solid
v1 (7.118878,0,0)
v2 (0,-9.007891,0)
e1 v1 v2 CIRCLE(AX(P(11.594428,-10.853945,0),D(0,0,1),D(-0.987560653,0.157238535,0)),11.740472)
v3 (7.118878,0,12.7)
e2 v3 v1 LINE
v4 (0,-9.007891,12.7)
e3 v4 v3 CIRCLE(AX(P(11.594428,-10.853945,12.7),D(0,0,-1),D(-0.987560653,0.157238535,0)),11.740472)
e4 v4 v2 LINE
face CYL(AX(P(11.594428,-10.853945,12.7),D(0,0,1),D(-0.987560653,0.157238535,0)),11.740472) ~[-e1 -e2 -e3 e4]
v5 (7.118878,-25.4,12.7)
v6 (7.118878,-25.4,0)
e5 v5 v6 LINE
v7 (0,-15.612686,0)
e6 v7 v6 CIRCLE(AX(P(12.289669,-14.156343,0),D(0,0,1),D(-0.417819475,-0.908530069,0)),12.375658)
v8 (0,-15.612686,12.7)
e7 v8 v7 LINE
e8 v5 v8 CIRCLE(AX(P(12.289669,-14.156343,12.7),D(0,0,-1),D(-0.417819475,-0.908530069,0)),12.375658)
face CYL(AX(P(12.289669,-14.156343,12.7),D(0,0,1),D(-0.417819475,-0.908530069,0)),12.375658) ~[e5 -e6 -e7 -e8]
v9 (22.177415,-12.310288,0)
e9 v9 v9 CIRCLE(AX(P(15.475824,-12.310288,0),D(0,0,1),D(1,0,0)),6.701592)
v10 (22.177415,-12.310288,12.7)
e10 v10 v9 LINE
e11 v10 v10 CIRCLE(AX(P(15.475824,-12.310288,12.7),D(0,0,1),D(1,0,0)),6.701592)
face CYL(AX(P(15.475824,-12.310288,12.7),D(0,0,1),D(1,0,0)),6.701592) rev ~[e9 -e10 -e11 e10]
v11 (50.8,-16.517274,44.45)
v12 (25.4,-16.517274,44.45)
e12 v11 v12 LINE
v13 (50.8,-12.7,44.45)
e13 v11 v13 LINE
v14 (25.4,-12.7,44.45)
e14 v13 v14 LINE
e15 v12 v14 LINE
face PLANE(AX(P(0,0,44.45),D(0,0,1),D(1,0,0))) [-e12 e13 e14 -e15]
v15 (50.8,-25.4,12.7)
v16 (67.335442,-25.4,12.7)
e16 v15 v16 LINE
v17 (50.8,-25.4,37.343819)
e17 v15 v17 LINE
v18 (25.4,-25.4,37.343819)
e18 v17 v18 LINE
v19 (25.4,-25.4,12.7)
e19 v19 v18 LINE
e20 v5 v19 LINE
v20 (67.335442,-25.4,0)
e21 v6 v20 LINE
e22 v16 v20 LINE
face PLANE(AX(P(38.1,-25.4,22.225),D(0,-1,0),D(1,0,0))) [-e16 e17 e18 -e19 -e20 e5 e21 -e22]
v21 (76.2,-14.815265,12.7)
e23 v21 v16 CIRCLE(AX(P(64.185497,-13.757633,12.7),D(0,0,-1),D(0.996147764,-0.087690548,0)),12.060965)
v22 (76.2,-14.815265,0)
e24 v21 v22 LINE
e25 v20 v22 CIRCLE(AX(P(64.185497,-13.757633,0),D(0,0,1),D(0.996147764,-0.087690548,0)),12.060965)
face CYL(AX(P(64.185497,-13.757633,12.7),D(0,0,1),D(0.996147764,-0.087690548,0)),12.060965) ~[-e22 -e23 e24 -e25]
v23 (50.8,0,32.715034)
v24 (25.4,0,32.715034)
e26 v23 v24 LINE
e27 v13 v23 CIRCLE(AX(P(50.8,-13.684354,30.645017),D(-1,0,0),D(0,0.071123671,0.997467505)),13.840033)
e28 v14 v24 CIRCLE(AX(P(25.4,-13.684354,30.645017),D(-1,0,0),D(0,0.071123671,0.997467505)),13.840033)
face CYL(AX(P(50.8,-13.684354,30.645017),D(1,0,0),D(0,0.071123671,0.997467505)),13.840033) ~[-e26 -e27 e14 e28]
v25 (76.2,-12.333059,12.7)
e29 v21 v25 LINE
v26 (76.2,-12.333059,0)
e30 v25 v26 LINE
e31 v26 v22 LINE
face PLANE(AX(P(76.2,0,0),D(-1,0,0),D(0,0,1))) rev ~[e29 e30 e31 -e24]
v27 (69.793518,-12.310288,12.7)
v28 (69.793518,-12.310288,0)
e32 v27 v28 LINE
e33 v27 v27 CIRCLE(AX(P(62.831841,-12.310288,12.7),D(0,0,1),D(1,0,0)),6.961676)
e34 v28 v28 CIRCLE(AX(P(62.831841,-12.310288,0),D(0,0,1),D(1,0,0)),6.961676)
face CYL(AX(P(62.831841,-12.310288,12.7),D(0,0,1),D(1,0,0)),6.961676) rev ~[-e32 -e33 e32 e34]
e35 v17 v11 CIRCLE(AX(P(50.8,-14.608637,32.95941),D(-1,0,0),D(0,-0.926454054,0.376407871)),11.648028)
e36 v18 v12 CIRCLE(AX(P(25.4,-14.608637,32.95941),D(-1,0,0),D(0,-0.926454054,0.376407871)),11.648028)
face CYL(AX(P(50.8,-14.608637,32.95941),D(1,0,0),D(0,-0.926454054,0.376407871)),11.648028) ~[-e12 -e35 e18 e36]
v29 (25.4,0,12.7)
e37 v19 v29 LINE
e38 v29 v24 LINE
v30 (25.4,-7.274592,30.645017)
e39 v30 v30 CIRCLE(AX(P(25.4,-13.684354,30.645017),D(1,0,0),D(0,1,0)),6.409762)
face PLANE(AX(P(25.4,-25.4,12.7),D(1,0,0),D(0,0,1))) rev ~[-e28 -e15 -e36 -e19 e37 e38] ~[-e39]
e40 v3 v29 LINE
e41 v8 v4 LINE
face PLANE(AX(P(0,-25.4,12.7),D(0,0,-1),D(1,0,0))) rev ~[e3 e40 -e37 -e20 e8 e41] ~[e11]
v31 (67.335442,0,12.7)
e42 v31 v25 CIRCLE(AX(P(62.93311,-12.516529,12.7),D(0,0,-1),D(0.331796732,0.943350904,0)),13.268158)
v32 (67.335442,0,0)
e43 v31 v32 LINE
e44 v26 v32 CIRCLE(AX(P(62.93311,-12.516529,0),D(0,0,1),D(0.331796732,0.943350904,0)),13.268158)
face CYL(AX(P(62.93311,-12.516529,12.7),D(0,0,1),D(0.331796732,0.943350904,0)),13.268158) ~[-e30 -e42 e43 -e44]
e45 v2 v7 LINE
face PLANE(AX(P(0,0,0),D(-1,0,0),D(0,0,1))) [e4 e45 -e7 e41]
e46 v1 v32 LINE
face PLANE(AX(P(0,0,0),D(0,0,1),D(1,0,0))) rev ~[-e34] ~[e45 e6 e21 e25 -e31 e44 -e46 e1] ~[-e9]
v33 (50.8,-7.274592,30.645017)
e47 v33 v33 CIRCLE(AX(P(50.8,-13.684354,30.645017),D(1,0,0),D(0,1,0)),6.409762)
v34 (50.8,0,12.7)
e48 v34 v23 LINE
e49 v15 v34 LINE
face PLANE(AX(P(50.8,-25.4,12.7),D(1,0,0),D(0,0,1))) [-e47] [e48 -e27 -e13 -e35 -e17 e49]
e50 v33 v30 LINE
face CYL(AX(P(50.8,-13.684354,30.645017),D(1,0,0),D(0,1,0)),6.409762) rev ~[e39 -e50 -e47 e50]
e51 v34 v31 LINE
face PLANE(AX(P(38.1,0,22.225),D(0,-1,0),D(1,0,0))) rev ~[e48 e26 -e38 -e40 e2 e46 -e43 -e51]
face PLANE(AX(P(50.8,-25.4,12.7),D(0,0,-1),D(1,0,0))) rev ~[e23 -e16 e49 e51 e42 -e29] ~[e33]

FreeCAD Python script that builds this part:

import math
import FreeCAD as App
import Part
import Sketcher
from FreeCAD import Vector
Q = App.Units.Quantity

doc = App.newDocument("Part")
body = doc.addObject("PartDesign::Body", "Body")

# Sketch on XZ plane
sketch1 = body.newObject("Sketcher::SketchObject", "Sketch")
sketch1.AttachmentSupport = (doc.getObject("XZ_Plane"), [""])
sketch1.MapMode = "FlatFace"
sketch1.addGeometry([
    Part.LineSegment(Vector(0, 44, 0), Vector(0, 0, 0)),
    Part.LineSegment(Vector(0, 0, 0), Vector(76, 0, 0)),
    Part.LineSegment(Vector(76, 0, 0), Vector(76, 44, 0)),
    Part.LineSegment(Vector(76, 44, 0), Vector(0, 44, 0)),
], False)
sketch1.addConstraint([
    Sketcher.Constraint("Coincident", 0, 2, 1, 1),
    Sketcher.Constraint("Coincident", 1, 2, 2, 1),
    Sketcher.Constraint("Coincident", 2, 2, 3, 1),
    Sketcher.Constraint("Coincident", 3, 2, 0, 1),
    Sketcher.Constraint("Vertical", 0),
    Sketcher.Constraint("Horizontal", 1),
    Sketcher.Constraint("Vertical", 2),
    Sketcher.Constraint("Horizontal", 3),
    Sketcher.Constraint("Coincident", 0, 2, -1, 1),
    Sketcher.Constraint("DistanceX", 1, 1, 1, 2, Q("3 in")),
    Sketcher.Constraint("DistanceY", 0, 2, 0, 1, Q("1.75 in")),
])
pad1 = body.newObject("PartDesign::Pad", "Pad")
pad1.Profile = sketch1
pad1.Length = Q("1 in")

# Sketch on XZ plane
sketch2 = body.newObject("Sketcher::SketchObject", "Sketch001")
sketch2.AttachmentSupport = (doc.getObject("XZ_Plane"), [""])
sketch2.MapMode = "FlatFace"
sketch2.AttachmentOffset = App.Placement(Vector(0, 0, 1 * 25.4), App.Rotation())
sketch2.addGeometry([
    Part.LineSegment(Vector(0, 44, 0), Vector(0, 13, 0)),  # 0
    Part.LineSegment(Vector(0, 13, 0), Vector(25, 13, 0)),  # 1
    Part.LineSegment(Vector(25, 13, 0), Vector(25, 44, 0)),  # 2
    Part.LineSegment(Vector(25, 44, 0), Vector(0, 44, 0)),  # 3
    Part.LineSegment(Vector(51, 44, 0), Vector(51, 13, 0)),  # 4
    Part.LineSegment(Vector(51, 13, 0), Vector(76, 13, 0)),  # 5
    Part.LineSegment(Vector(76, 13, 0), Vector(76, 44, 0)),  # 6
    Part.LineSegment(Vector(76, 44, 0), Vector(51, 44, 0)),  # 7
], False)
sketch2.addConstraint([
    Sketcher.Constraint("Coincident", 0, 2, 1, 1),
    Sketcher.Constraint("Coincident", 1, 2, 2, 1),
    Sketcher.Constraint("Coincident", 2, 2, 3, 1),
    Sketcher.Constraint("Coincident", 3, 2, 0, 1),
    Sketcher.Constraint("Coincident", 4, 2, 5, 1),
    Sketcher.Constraint("Coincident", 5, 2, 6, 1),
    Sketcher.Constraint("Coincident", 6, 2, 7, 1),
    Sketcher.Constraint("Coincident", 7, 2, 4, 1),
    Sketcher.Constraint("Vertical", 0),
    Sketcher.Constraint("Horizontal", 1),
    Sketcher.Constraint("Vertical", 2),
    Sketcher.Constraint("Horizontal", 3),
    Sketcher.Constraint("Vertical", 4),
    Sketcher.Constraint("Horizontal", 5),
    Sketcher.Constraint("Vertical", 6),
    Sketcher.Constraint("Horizontal", 7),
    Sketcher.Constraint("PointOnObject", 0, 2, -2),
    Sketcher.Constraint("Horizontal", 1, 2, 4, 2),
    Sketcher.Constraint("Horizontal", 3, 2, 6, 2),
    Sketcher.Constraint("Equal", 3, 5),
    Sketcher.Constraint("DistanceX", 1, 1, 1, 2, Q("1 in")),
    Sketcher.Constraint("DistanceX", -1, 1, 4, 2, Q("2 in")),
    Sketcher.Constraint("DistanceY", 0, 2, 0, 1, Q("1.25 in")),
    Sketcher.Constraint("DistanceY", -1, 1, 0, 2, Q("0.5 in")),
])
pocket1 = body.newObject("PartDesign::Pocket", "Pocket")
pocket1.Profile = sketch2
pocket1.Length = Q("1 in")

# Sketch on YZ plane
sketch3 = body.newObject("Sketcher::SketchObject", "Sketch002")
sketch3.AttachmentSupport = (doc.getObject("YZ_Plane"), [""])
sketch3.MapMode = "FlatFace"
sketch3.AttachmentOffset = App.Placement(Vector(0, 0, 2 * 25.4), App.Rotation())
sketch3.addGeometry([
    Part.ArcOfCircle(Part.Circle(Vector(-15, 33, 0), Vector(0, 0, 1), 12), math.radians(99), math.radians(158)),  # 0
    Part.LineSegment(Vector(-17, 44, 0), Vector(-25, 44, 0)),  # 1
    Part.LineSegment(Vector(-25, 44, 0), Vector(-25, 37, 0)),  # 2
    Part.LineSegment(Vector(0, 44, 0), Vector(-13, 44, 0)),  # 3
    Part.ArcOfCircle(Part.Circle(Vector(-14, 31, 0), Vector(0, 0, 1), 14), math.radians(9), math.radians(86)),  # 4
    Part.LineSegment(Vector(0, 33, 0), Vector(0, 44, 0)),  # 5
], False)
sketch3.addConstraint([
    Sketcher.Constraint("Coincident", 0, 1, 1, 1),
    Sketcher.Constraint("Coincident", 1, 2, 2, 1),
    Sketcher.Constraint("Coincident", 2, 2, 0, 2),
    Sketcher.Constraint("Coincident", 3, 2, 4, 2),
    Sketcher.Constraint("Coincident", 4, 1, 5, 1),
    Sketcher.Constraint("Coincident", 5, 2, 3, 1),
    Sketcher.Constraint("Horizontal", 1),
    Sketcher.Constraint("Vertical", 2),
    Sketcher.Constraint("Horizontal", 3),
    Sketcher.Constraint("Vertical", 5),
    Sketcher.Constraint("PointOnObject", 4, 1, -2),
    Sketcher.Constraint("Horizontal", 1, 2, 3, 2),
    Sketcher.Constraint("DistanceX", 3, 2, 3, 1, Q("0.5 in")),
    Sketcher.Constraint("DistanceX", 1, 2, -1, 1, Q("1 in")),
    Sketcher.Constraint("DistanceY", -1, 1, 0, 1, Q("1.75 in")),
    Sketcher.Constraint("Radius", 0, 11.648028),
    Sketcher.Constraint("Radius", 4, 13.840033),
    Sketcher.Constraint("DistanceY", 2, 2, 2, 1, 7.106181),
    Sketcher.Constraint("DistanceX", 1, 2, 1, 1, 8.882726),
    Sketcher.Constraint("DistanceY", 5, 1, 5, 2, 11.734966),
])
pocket2 = body.newObject("PartDesign::Pocket", "Pocket001")
pocket2.Profile = sketch3
pocket2.Length = Q("1 in")

# Sketch on YZ plane
sketch4 = body.newObject("Sketcher::SketchObject", "Sketch003")
sketch4.AttachmentSupport = (doc.getObject("YZ_Plane"), [""])
sketch4.MapMode = "FlatFace"
sketch4.AttachmentOffset = App.Placement(Vector(0, 0, 2 * 25.4), App.Rotation())
sketch4.addGeometry(Part.Circle(Vector(-14, 31, 0), Vector(0, 0, 1), 6), False)
sketch4.addConstraint([
    Sketcher.Constraint("Diameter", 0, 12.819523),
    Sketcher.Constraint("DistanceX", 0, 3, -1, 1, 13.684354),
    Sketcher.Constraint("DistanceY", -1, 1, 0, 3, 30.645017),
])
pocket3 = body.newObject("PartDesign::Pocket", "Pocket002")
pocket3.Profile = sketch4
pocket3.Length = Q("1 in")

# Sketch on XY plane
sketch5 = body.newObject("Sketcher::SketchObject", "Sketch004")
sketch5.AttachmentSupport = (doc.getObject("XY_Plane"), [""])
sketch5.MapMode = "FlatFace"
sketch5.AttachmentOffset = App.Placement(Vector(0, 0, 0.5 * 25.4), App.Rotation())
sketch5.addGeometry([
    Part.LineSegment(Vector(0, 0, 0), Vector(0, -9, 0)),  # 0
    Part.ArcOfCircle(Part.Circle(Vector(12, -11, 0), Vector(0, 0, 1), 12), math.radians(112), math.radians(171)),  # 1
    Part.LineSegment(Vector(7, 0, 0), Vector(0, 0, 0)),  # 2
    Part.ArcOfCircle(Part.Circle(Vector(12, -14, 0), Vector(0, 0, 1), 12), math.radians(-173), math.radians(-115)),  # 3
    Part.LineSegment(Vector(0, -16, 0), Vector(0, -25, 0)),  # 4
    Part.LineSegment(Vector(0, -25, 0), Vector(7, -25, 0)),  # 5
], False)
sketch5.addConstraint([
    Sketcher.Constraint("Coincident", 0, 2, 1, 2),
    Sketcher.Constraint("Coincident", 1, 1, 2, 1),
    Sketcher.Constraint("Coincident", 2, 2, 0, 1),
    Sketcher.Constraint("Coincident", 3, 1, 4, 1),
    Sketcher.Constraint("Coincident", 4, 2, 5, 1),
    Sketcher.Constraint("Coincident", 5, 2, 3, 2),
    Sketcher.Constraint("Vertical", 0),
    Sketcher.Constraint("Horizontal", 2),
    Sketcher.Constraint("Vertical", 4),
    Sketcher.Constraint("Horizontal", 5),
    Sketcher.Constraint("Coincident", 2, 2, -1, 1),
    Sketcher.Constraint("PointOnObject", 3, 1, -2),
    Sketcher.Constraint("Vertical", 1, 1, 5, 2),
    Sketcher.Constraint("DistanceY", 4, 2, -1, 1, Q("1 in")),
    Sketcher.Constraint("Radius", 1, 11.740472),
    Sketcher.Constraint("Radius", 3, 12.375658),
    Sketcher.Constraint("DistanceX", 2, 2, 2, 1, 7.118878),
    Sketcher.Constraint("DistanceY", 0, 2, 0, 1, 9.007891),
    Sketcher.Constraint("DistanceY", 4, 2, 4, 1, 9.787314),
])
pocket4 = body.newObject("PartDesign::Pocket", "Pocket003")
pocket4.Profile = sketch5
pocket4.Length = Q("1 in")

# Sketch on XY plane
sketch6 = body.newObject("Sketcher::SketchObject", "Sketch005")
sketch6.AttachmentSupport = (doc.getObject("XY_Plane"), [""])
sketch6.MapMode = "FlatFace"
sketch6.AttachmentOffset = App.Placement(Vector(0, 0, 0.5 * 25.4), App.Rotation())
sketch6.addGeometry([
    Part.ArcOfCircle(Part.Circle(Vector(63, -13, 0), Vector(0, 0, 1), 13), math.radians(1), math.radians(71)),  # 0
    Part.LineSegment(Vector(76, -12, 0), Vector(76, 0, 0)),  # 1
    Part.LineSegment(Vector(76, 0, 0), Vector(67, 0, 0)),  # 2
    Part.ArcOfCircle(Part.Circle(Vector(64, -14, 0), Vector(0, 0, 1), 12), math.radians(-75), math.radians(-5)),  # 3
    Part.LineSegment(Vector(67, -25, 0), Vector(76, -25, 0)),  # 4
    Part.LineSegment(Vector(76, -25, 0), Vector(76, -15, 0)),  # 5
], False)
sketch6.addConstraint([
    Sketcher.Constraint("Coincident", 0, 1, 1, 1),
    Sketcher.Constraint("Coincident", 1, 2, 2, 1),
    Sketcher.Constraint("Coincident", 2, 2, 0, 2),
    Sketcher.Constraint("Coincident", 3, 1, 4, 1),
    Sketcher.Constraint("Coincident", 4, 2, 5, 1),
    Sketcher.Constraint("Coincident", 5, 2, 3, 2),
    Sketcher.Constraint("Vertical", 1),
    Sketcher.Constraint("Horizontal", 2),
    Sketcher.Constraint("Horizontal", 4),
    Sketcher.Constraint("Vertical", 5),
    Sketcher.Constraint("PointOnObject", 1, 2, -1),
    Sketcher.Constraint("Vertical", 2, 2, 3, 1),
    Sketcher.Constraint("Vertical", 1, 2, 4, 2),
    Sketcher.Constraint("DistanceX", -1, 1, 0, 1, Q("3 in")),
    Sketcher.Constraint("DistanceY", 3, 1, -1, 1, Q("1 in")),
    Sketcher.Constraint("Radius", 0, 13.268158),
    Sketcher.Constraint("Radius", 3, 12.060965),
    Sketcher.Constraint("DistanceX", 2, 2, 2, 1, 8.864558),
    Sketcher.Constraint("DistanceY", 1, 1, 1, 2, 12.333059),
    Sketcher.Constraint("DistanceY", 5, 1, 5, 2, 10.584735),
])
pocket5 = body.newObject("PartDesign::Pocket", "Pocket004")
pocket5.Profile = sketch6
pocket5.Length = Q("1 in")

# Sketch on XY plane
sketch7 = body.newObject("Sketcher::SketchObject", "Sketch006")
sketch7.AttachmentSupport = (doc.getObject("XY_Plane"), [""])
sketch7.MapMode = "FlatFace"
sketch7.AttachmentOffset = App.Placement(Vector(0, 0, 0.5 * 25.4), App.Rotation())
sketch7.addGeometry([
    Part.Circle(Vector(63, -12, 0), Vector(0, 0, 1), 7),
    Part.Circle(Vector(15, -12, 0), Vector(0, 0, 1), 7),
], False)
sketch7.addConstraint([
    Sketcher.Constraint("Horizontal", 0, 3, 1, 3),
    Sketcher.Constraint("Diameter", 0, 13.923352),
    Sketcher.Constraint("Diameter", 1, 13.403184),
    Sketcher.Constraint("DistanceX", -1, 1, 0, 3, 62.831841),
    Sketcher.Constraint("DistanceY", 0, 3, -1, 1, 12.310288),
    Sketcher.Constraint("DistanceX", -1, 1, 1, 3, 15.475824),
])
pocket6 = body.newObject("PartDesign::Pocket", "Pocket005")
pocket6.Profile = sketch7
pocket6.Length = Q("1 in")

doc.recompute()
